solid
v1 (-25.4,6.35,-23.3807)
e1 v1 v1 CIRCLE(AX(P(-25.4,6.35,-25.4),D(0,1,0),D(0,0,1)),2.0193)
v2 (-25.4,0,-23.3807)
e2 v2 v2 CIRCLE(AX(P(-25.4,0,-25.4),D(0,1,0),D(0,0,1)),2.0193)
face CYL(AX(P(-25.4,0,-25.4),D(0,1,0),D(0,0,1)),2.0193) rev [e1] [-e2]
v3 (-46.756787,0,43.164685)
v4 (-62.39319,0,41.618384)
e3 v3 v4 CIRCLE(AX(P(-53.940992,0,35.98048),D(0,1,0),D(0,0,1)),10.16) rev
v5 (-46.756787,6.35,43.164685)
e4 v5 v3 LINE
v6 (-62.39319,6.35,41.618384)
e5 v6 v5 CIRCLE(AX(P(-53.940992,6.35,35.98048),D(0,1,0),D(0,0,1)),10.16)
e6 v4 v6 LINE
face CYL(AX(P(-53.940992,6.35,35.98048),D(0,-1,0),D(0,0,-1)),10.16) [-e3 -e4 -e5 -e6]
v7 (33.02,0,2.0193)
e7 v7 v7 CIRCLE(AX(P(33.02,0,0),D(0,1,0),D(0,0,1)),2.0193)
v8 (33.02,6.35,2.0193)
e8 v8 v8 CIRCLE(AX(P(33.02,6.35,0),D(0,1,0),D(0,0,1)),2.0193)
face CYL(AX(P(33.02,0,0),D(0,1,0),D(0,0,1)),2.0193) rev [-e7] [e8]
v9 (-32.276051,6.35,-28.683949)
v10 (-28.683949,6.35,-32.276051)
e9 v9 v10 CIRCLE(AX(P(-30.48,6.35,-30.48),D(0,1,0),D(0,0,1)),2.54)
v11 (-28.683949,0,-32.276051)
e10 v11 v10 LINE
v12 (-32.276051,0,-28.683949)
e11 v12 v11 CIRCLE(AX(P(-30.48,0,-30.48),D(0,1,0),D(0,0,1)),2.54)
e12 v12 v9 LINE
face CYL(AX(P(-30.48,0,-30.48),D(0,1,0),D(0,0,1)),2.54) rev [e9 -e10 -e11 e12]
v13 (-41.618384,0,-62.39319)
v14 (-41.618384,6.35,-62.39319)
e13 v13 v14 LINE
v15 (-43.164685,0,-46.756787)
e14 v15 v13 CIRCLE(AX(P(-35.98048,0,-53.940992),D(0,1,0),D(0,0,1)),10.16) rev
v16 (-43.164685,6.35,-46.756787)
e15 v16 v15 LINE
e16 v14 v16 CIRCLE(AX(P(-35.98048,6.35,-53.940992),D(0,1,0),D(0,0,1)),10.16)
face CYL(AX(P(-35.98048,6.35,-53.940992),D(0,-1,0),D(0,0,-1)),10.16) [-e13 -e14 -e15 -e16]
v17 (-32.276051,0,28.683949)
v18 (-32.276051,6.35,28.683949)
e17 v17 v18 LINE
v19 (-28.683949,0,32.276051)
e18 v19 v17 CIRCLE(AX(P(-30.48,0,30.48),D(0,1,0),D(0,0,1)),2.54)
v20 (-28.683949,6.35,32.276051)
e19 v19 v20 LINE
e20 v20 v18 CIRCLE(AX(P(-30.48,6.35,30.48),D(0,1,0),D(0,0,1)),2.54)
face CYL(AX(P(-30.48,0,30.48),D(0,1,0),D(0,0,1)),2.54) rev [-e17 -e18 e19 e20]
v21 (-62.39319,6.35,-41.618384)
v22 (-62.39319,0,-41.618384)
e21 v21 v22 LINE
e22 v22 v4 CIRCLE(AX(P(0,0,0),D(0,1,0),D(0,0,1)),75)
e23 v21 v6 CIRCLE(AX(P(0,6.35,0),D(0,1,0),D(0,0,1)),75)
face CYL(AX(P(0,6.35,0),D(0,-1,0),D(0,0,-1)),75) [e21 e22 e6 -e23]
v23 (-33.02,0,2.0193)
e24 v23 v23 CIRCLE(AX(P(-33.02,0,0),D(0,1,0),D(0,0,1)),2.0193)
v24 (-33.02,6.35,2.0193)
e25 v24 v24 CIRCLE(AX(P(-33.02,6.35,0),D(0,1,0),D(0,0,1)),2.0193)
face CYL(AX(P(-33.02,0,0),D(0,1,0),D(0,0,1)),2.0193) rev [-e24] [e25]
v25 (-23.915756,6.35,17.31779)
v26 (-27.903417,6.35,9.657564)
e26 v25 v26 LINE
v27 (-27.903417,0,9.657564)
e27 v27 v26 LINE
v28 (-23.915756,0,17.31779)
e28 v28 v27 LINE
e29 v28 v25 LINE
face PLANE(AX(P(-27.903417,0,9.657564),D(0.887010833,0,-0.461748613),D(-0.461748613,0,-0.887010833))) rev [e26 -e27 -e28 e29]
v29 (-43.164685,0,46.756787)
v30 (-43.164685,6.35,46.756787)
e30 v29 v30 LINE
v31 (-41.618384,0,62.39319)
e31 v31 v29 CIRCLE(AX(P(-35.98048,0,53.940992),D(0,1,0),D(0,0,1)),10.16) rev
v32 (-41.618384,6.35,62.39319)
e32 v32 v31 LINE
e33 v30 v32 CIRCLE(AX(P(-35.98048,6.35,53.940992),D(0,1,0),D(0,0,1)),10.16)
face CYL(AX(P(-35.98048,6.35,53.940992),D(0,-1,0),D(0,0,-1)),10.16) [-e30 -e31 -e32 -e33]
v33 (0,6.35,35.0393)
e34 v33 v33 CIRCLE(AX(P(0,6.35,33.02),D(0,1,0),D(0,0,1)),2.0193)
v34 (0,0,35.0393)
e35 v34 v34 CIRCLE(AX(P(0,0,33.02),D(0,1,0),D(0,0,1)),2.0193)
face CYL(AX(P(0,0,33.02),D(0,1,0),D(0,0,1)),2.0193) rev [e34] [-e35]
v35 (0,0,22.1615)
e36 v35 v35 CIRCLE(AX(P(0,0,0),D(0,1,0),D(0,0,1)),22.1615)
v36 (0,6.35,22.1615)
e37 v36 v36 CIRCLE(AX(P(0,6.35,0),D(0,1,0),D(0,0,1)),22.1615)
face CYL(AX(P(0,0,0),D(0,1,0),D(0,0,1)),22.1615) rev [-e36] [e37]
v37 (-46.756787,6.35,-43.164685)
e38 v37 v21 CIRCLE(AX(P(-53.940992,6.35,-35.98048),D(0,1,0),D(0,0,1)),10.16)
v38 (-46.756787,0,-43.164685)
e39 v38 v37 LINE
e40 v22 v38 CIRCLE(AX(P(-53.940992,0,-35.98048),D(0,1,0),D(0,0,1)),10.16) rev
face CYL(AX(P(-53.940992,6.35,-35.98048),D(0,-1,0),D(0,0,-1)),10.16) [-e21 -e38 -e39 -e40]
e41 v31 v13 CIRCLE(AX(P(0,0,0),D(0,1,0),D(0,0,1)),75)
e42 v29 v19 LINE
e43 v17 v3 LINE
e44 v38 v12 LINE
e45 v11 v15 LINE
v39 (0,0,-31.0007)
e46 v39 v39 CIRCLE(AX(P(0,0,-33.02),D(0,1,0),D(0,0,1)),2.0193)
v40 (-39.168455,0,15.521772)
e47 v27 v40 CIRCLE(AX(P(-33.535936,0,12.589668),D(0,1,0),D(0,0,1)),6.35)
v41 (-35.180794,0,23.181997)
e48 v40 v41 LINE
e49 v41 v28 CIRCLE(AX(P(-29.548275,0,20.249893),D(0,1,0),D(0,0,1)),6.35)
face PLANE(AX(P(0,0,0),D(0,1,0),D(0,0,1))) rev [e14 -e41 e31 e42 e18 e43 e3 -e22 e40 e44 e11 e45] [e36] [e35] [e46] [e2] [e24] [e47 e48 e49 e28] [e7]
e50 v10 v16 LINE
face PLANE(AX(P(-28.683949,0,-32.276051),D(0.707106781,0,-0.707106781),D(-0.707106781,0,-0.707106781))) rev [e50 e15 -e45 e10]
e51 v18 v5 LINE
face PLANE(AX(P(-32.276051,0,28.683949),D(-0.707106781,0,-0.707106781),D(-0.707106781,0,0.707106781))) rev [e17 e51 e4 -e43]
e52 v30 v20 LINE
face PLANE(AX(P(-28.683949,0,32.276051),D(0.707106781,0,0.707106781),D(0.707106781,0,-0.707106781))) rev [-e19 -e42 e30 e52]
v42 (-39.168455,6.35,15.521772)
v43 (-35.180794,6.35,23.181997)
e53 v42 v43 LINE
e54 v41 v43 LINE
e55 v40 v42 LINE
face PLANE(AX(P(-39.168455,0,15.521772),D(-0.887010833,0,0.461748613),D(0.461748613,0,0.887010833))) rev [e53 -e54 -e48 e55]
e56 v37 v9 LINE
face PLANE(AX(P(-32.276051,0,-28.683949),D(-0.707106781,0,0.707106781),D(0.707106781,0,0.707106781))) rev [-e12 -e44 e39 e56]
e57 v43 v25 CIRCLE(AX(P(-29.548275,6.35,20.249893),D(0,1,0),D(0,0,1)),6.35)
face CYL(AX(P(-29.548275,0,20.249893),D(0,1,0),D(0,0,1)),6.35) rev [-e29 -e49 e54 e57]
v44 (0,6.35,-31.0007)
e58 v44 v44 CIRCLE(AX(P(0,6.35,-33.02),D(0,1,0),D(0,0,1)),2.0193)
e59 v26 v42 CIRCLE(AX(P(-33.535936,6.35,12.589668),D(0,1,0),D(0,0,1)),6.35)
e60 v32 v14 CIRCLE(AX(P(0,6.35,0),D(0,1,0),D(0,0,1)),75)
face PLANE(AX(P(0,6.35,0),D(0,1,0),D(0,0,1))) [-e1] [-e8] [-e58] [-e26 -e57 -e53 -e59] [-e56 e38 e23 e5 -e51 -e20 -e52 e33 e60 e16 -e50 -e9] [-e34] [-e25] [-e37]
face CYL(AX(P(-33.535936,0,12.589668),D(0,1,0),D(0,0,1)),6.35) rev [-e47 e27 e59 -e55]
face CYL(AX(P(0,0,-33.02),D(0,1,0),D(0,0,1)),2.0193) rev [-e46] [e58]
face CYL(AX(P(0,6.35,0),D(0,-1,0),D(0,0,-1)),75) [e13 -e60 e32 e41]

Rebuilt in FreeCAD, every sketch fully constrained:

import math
import FreeCAD as App
import Part
import Sketcher
Q = App.Units.Quantity


def edges_at(feature, points):
    """Names of the edges that pass closest to the given points."""
    edges = feature.Shape.Edges
    near = lambda p: min(range(len(edges)), key=lambda i: edges[i].distToShape(Part.Vertex(*p))[0])
    return sorted({f"Edge{near(p) + 1}" for p in points})

doc = App.newDocument("Part")
body = doc.addObject("PartDesign::Body", "Body")

# Sketch on XZ plane
sketch1 = body.newObject("Sketcher::SketchObject", "Sketch")
sketch1.AttachmentSupport = (doc.getObject("XZ_Plane"), [""])
sketch1.MapMode = "FlatFace"
sketch1.addGeometry(Part.Circle(App.Vector(0, 0, 0), App.Vector(0, 0, 1), 75), False)
sketch1.addConstraint([
    Sketcher.Constraint("Coincident", 0, 3, -1, 1),
    Sketcher.Constraint("Diameter", 0, Q("150 mm")),
])
pad1 = body.newObject("PartDesign::Pad", "Pad")
pad1.Profile = sketch1
pad1.Length = Q("0.25 in")
pad1.Reversed = True

# Sketch on XZ plane
sketch2 = body.newObject("Sketcher::SketchObject", "Sketch001")
sketch2.AttachmentSupport = (doc.getObject("XZ_Plane"), [""])
sketch2.MapMode = "FlatFace"
sketch2.AttachmentOffset = App.Placement(App.Vector(0, 0, -0.25 * 25.4), App.Rotation())
sketch2.addGeometry([
    Part.Circle(App.Vector(0, 0, 0), App.Vector(0, 0, 1), 22.2),  # 0
    Part.Circle(App.Vector(-25.4, -25.4, 0), App.Vector(0, 0, 1), 2),  # 1
    Part.Circle(App.Vector(0, -33, 0), App.Vector(0, 0, 1), 2),  # 2
    Part.Circle(App.Vector(33, 0, 0), App.Vector(0, 0, 1), 2),  # 3
    Part.Circle(App.Vector(0, 33, 0), App.Vector(0, 0, 1), 2),  # 4
    Part.Circle(App.Vector(-33, 0, 0), App.Vector(0, 0, 1), 2),  # 5
    Part.LineSegment(App.Vector(-23.9, 17.3, 0), App.Vector(-27.9, 9.7, 0)),  # 6
    Part.ArcOfCircle(Part.Circle(App.Vector(-33.5, 12.6, 0), App.Vector(0, 0, 1), 6.3), math.radians(152), math.radians(333)),  # 7
    Part.LineSegment(App.Vector(-39.2, 15.5, 0), App.Vector(-35.2, 23.2, 0)),  # 8
    Part.ArcOfCircle(Part.Circle(App.Vector(-29.5, 20.2, 0), App.Vector(0, 0, 1), 6.3), math.radians(-27), math.radians(153)),  # 9
    Part.LineSegment(App.Vector(-51.2, 54.8, 0), App.Vector(-28.7, 32.3, 0)),  # 10
    Part.ArcOfCircle(Part.Circle(App.Vector(-30.5, 30.5, 0), App.Vector(0, 0, 1), 2.5), math.radians(-135), math.radians(45)),  # 11
    Part.LineSegment(App.Vector(-32.3, 28.7, 0), App.Vector(-54.8, 51.2, 0)),  # 12
    Part.ArcOfCircle(Part.Circle(App.Vector(-53, 53, 0), App.Vector(0, 0, 1), 2.5), math.radians(45), math.radians(225)),  # 13
    Part.LineSegment(App.Vector(-54.8, -51.2, 0), App.Vector(-32.3, -28.7, 0)),  # 14
    Part.ArcOfCircle(Part.Circle(App.Vector(-30.5, -30.5, 0), App.Vector(0, 0, 1), 2.5), math.radians(-45), math.radians(135)),  # 15
    Part.LineSegment(App.Vector(-28.7, -32.3, 0), App.Vector(-51.2, -54.8, 0)),  # 16
    Part.ArcOfCircle(Part.Circle(App.Vector(-53, -53, 0), App.Vector(0, 0, 1), 2.5), math.radians(135), math.radians(315)),  # 17
], False)
sketch2.addConstraint([
    Sketcher.Constraint("Tangent", 6, 2, 7, 2),
    Sketcher.Constraint("Tangent", 7, 1, 8, 1),
    Sketcher.Constraint("Tangent", 8, 2, 9, 2),
    Sketcher.Constraint("Tangent", 9, 1, 6, 1),
    Sketcher.Constraint("Tangent", 10, 2, 11, 2),
    Sketcher.Constraint("Tangent", 11, 1, 12, 1),
    Sketcher.Constraint("Tangent", 12, 2, 13, 2),
    Sketcher.Constraint("Tangent", 13, 1, 10, 1),
    Sketcher.Constraint("Tangent", 14, 2, 15, 2),
    Sketcher.Constraint("Tangent", 15, 1, 16, 1),
    Sketcher.Constraint("Tangent", 16, 2, 17, 2),
    Sketcher.Constraint("Tangent", 17, 1, 14, 1),
    Sketcher.Constraint("Coincident", 0, 3, -1, 1),
    Sketcher.Constraint("Equal", 1, 2),
    Sketcher.Constraint("Equal", 2, 3),
    Sketcher.Constraint("Equal", 3, 4),
    Sketcher.Constraint("Equal", 4, 5),
    Sketcher.Constraint("Equal", 7, 9),
    Sketcher.Constraint("Equal", 11, 13),
    Sketcher.Constraint("Equal", 13, 15),
    Sketcher.Constraint("Equal", 15, 17),
    Sketcher.Constraint("Symmetric", 2, 3, 4, 3, -1, 1),
    Sketcher.Constraint("Symmetric", 3, 3, 5, 3, -1, 1),
    Sketcher.Constraint("Symmetric", 11, 3, 15, 3, -1),
    Sketcher.Constraint("Symmetric", 13, 3, 17, 3, -1),
    Sketcher.Constraint("PointOnObject", 2, 3, -2),
    Sketcher.Constraint("PointOnObject", 3, 3, -1),
    Sketcher.Constraint("Perpendicular", 12, 14),
    Sketcher.Constraint("Radius", 11, Q("0.1 in")),
    Sketcher.Constraint("Radius", 7, Q("0.25 in")),
    Sketcher.Constraint("Diameter", 0, Q("1.745 in")),
    Sketcher.Constraint("Diameter", 1, Q("0.159 in")),
    Sketcher.Constraint("DistanceX", 1, 3, -1, 1, Q("1 in")),
    Sketcher.Constraint("DistanceY", 1, 3, -1, 1, Q("1 in")),
    Sketcher.Constraint("DistanceY", 2, 3, -1, 1, Q("1.3 in")),
    Sketcher.Constraint("DistanceX", -1, 1, 3, 3, Q("1.3 in")),
    Sketcher.Constraint("DistanceX", 11, 3, -1, 1, Q("1.2 in")),
    Sketcher.Constraint("DistanceY", -1, 1, 11, 3, Q("1.2 in")),
    Sketcher.Constraint("Angle", 6, Q("-117.5 deg")),
    Sketcher.Constraint("Distance", 6, Q("0.34 in")),
    Sketcher.Constraint("Distance", 10, Q("31.894771 mm")),
    Sketcher.Constraint("DistanceY", -1, 1, 7, 1, Q("15.521772 mm")),
    Sketcher.Constraint("DistanceX", 7, 3, -1, 1, Q("33.535936 mm")),
])
pocket1 = body.newObject("PartDesign::Pocket", "Pocket")
pocket1.Profile = sketch2
pocket1.Type = "ThroughAll"
pocket1.Reversed = True
doc.recompute()

fillet = body.newObject("PartDesign::Fillet", "Fillet")
fillet.Base = (pocket1, edges_at(pocket1, [
    (-51.207, 3.175, 54.799),
    (-54.799, 3.175, 51.207),
    (-54.799, 3.175, -51.207),
    (-51.207, 3.175, -54.799),
]))
fillet.Radius = Q("0.4 in")

doc.recompute()
